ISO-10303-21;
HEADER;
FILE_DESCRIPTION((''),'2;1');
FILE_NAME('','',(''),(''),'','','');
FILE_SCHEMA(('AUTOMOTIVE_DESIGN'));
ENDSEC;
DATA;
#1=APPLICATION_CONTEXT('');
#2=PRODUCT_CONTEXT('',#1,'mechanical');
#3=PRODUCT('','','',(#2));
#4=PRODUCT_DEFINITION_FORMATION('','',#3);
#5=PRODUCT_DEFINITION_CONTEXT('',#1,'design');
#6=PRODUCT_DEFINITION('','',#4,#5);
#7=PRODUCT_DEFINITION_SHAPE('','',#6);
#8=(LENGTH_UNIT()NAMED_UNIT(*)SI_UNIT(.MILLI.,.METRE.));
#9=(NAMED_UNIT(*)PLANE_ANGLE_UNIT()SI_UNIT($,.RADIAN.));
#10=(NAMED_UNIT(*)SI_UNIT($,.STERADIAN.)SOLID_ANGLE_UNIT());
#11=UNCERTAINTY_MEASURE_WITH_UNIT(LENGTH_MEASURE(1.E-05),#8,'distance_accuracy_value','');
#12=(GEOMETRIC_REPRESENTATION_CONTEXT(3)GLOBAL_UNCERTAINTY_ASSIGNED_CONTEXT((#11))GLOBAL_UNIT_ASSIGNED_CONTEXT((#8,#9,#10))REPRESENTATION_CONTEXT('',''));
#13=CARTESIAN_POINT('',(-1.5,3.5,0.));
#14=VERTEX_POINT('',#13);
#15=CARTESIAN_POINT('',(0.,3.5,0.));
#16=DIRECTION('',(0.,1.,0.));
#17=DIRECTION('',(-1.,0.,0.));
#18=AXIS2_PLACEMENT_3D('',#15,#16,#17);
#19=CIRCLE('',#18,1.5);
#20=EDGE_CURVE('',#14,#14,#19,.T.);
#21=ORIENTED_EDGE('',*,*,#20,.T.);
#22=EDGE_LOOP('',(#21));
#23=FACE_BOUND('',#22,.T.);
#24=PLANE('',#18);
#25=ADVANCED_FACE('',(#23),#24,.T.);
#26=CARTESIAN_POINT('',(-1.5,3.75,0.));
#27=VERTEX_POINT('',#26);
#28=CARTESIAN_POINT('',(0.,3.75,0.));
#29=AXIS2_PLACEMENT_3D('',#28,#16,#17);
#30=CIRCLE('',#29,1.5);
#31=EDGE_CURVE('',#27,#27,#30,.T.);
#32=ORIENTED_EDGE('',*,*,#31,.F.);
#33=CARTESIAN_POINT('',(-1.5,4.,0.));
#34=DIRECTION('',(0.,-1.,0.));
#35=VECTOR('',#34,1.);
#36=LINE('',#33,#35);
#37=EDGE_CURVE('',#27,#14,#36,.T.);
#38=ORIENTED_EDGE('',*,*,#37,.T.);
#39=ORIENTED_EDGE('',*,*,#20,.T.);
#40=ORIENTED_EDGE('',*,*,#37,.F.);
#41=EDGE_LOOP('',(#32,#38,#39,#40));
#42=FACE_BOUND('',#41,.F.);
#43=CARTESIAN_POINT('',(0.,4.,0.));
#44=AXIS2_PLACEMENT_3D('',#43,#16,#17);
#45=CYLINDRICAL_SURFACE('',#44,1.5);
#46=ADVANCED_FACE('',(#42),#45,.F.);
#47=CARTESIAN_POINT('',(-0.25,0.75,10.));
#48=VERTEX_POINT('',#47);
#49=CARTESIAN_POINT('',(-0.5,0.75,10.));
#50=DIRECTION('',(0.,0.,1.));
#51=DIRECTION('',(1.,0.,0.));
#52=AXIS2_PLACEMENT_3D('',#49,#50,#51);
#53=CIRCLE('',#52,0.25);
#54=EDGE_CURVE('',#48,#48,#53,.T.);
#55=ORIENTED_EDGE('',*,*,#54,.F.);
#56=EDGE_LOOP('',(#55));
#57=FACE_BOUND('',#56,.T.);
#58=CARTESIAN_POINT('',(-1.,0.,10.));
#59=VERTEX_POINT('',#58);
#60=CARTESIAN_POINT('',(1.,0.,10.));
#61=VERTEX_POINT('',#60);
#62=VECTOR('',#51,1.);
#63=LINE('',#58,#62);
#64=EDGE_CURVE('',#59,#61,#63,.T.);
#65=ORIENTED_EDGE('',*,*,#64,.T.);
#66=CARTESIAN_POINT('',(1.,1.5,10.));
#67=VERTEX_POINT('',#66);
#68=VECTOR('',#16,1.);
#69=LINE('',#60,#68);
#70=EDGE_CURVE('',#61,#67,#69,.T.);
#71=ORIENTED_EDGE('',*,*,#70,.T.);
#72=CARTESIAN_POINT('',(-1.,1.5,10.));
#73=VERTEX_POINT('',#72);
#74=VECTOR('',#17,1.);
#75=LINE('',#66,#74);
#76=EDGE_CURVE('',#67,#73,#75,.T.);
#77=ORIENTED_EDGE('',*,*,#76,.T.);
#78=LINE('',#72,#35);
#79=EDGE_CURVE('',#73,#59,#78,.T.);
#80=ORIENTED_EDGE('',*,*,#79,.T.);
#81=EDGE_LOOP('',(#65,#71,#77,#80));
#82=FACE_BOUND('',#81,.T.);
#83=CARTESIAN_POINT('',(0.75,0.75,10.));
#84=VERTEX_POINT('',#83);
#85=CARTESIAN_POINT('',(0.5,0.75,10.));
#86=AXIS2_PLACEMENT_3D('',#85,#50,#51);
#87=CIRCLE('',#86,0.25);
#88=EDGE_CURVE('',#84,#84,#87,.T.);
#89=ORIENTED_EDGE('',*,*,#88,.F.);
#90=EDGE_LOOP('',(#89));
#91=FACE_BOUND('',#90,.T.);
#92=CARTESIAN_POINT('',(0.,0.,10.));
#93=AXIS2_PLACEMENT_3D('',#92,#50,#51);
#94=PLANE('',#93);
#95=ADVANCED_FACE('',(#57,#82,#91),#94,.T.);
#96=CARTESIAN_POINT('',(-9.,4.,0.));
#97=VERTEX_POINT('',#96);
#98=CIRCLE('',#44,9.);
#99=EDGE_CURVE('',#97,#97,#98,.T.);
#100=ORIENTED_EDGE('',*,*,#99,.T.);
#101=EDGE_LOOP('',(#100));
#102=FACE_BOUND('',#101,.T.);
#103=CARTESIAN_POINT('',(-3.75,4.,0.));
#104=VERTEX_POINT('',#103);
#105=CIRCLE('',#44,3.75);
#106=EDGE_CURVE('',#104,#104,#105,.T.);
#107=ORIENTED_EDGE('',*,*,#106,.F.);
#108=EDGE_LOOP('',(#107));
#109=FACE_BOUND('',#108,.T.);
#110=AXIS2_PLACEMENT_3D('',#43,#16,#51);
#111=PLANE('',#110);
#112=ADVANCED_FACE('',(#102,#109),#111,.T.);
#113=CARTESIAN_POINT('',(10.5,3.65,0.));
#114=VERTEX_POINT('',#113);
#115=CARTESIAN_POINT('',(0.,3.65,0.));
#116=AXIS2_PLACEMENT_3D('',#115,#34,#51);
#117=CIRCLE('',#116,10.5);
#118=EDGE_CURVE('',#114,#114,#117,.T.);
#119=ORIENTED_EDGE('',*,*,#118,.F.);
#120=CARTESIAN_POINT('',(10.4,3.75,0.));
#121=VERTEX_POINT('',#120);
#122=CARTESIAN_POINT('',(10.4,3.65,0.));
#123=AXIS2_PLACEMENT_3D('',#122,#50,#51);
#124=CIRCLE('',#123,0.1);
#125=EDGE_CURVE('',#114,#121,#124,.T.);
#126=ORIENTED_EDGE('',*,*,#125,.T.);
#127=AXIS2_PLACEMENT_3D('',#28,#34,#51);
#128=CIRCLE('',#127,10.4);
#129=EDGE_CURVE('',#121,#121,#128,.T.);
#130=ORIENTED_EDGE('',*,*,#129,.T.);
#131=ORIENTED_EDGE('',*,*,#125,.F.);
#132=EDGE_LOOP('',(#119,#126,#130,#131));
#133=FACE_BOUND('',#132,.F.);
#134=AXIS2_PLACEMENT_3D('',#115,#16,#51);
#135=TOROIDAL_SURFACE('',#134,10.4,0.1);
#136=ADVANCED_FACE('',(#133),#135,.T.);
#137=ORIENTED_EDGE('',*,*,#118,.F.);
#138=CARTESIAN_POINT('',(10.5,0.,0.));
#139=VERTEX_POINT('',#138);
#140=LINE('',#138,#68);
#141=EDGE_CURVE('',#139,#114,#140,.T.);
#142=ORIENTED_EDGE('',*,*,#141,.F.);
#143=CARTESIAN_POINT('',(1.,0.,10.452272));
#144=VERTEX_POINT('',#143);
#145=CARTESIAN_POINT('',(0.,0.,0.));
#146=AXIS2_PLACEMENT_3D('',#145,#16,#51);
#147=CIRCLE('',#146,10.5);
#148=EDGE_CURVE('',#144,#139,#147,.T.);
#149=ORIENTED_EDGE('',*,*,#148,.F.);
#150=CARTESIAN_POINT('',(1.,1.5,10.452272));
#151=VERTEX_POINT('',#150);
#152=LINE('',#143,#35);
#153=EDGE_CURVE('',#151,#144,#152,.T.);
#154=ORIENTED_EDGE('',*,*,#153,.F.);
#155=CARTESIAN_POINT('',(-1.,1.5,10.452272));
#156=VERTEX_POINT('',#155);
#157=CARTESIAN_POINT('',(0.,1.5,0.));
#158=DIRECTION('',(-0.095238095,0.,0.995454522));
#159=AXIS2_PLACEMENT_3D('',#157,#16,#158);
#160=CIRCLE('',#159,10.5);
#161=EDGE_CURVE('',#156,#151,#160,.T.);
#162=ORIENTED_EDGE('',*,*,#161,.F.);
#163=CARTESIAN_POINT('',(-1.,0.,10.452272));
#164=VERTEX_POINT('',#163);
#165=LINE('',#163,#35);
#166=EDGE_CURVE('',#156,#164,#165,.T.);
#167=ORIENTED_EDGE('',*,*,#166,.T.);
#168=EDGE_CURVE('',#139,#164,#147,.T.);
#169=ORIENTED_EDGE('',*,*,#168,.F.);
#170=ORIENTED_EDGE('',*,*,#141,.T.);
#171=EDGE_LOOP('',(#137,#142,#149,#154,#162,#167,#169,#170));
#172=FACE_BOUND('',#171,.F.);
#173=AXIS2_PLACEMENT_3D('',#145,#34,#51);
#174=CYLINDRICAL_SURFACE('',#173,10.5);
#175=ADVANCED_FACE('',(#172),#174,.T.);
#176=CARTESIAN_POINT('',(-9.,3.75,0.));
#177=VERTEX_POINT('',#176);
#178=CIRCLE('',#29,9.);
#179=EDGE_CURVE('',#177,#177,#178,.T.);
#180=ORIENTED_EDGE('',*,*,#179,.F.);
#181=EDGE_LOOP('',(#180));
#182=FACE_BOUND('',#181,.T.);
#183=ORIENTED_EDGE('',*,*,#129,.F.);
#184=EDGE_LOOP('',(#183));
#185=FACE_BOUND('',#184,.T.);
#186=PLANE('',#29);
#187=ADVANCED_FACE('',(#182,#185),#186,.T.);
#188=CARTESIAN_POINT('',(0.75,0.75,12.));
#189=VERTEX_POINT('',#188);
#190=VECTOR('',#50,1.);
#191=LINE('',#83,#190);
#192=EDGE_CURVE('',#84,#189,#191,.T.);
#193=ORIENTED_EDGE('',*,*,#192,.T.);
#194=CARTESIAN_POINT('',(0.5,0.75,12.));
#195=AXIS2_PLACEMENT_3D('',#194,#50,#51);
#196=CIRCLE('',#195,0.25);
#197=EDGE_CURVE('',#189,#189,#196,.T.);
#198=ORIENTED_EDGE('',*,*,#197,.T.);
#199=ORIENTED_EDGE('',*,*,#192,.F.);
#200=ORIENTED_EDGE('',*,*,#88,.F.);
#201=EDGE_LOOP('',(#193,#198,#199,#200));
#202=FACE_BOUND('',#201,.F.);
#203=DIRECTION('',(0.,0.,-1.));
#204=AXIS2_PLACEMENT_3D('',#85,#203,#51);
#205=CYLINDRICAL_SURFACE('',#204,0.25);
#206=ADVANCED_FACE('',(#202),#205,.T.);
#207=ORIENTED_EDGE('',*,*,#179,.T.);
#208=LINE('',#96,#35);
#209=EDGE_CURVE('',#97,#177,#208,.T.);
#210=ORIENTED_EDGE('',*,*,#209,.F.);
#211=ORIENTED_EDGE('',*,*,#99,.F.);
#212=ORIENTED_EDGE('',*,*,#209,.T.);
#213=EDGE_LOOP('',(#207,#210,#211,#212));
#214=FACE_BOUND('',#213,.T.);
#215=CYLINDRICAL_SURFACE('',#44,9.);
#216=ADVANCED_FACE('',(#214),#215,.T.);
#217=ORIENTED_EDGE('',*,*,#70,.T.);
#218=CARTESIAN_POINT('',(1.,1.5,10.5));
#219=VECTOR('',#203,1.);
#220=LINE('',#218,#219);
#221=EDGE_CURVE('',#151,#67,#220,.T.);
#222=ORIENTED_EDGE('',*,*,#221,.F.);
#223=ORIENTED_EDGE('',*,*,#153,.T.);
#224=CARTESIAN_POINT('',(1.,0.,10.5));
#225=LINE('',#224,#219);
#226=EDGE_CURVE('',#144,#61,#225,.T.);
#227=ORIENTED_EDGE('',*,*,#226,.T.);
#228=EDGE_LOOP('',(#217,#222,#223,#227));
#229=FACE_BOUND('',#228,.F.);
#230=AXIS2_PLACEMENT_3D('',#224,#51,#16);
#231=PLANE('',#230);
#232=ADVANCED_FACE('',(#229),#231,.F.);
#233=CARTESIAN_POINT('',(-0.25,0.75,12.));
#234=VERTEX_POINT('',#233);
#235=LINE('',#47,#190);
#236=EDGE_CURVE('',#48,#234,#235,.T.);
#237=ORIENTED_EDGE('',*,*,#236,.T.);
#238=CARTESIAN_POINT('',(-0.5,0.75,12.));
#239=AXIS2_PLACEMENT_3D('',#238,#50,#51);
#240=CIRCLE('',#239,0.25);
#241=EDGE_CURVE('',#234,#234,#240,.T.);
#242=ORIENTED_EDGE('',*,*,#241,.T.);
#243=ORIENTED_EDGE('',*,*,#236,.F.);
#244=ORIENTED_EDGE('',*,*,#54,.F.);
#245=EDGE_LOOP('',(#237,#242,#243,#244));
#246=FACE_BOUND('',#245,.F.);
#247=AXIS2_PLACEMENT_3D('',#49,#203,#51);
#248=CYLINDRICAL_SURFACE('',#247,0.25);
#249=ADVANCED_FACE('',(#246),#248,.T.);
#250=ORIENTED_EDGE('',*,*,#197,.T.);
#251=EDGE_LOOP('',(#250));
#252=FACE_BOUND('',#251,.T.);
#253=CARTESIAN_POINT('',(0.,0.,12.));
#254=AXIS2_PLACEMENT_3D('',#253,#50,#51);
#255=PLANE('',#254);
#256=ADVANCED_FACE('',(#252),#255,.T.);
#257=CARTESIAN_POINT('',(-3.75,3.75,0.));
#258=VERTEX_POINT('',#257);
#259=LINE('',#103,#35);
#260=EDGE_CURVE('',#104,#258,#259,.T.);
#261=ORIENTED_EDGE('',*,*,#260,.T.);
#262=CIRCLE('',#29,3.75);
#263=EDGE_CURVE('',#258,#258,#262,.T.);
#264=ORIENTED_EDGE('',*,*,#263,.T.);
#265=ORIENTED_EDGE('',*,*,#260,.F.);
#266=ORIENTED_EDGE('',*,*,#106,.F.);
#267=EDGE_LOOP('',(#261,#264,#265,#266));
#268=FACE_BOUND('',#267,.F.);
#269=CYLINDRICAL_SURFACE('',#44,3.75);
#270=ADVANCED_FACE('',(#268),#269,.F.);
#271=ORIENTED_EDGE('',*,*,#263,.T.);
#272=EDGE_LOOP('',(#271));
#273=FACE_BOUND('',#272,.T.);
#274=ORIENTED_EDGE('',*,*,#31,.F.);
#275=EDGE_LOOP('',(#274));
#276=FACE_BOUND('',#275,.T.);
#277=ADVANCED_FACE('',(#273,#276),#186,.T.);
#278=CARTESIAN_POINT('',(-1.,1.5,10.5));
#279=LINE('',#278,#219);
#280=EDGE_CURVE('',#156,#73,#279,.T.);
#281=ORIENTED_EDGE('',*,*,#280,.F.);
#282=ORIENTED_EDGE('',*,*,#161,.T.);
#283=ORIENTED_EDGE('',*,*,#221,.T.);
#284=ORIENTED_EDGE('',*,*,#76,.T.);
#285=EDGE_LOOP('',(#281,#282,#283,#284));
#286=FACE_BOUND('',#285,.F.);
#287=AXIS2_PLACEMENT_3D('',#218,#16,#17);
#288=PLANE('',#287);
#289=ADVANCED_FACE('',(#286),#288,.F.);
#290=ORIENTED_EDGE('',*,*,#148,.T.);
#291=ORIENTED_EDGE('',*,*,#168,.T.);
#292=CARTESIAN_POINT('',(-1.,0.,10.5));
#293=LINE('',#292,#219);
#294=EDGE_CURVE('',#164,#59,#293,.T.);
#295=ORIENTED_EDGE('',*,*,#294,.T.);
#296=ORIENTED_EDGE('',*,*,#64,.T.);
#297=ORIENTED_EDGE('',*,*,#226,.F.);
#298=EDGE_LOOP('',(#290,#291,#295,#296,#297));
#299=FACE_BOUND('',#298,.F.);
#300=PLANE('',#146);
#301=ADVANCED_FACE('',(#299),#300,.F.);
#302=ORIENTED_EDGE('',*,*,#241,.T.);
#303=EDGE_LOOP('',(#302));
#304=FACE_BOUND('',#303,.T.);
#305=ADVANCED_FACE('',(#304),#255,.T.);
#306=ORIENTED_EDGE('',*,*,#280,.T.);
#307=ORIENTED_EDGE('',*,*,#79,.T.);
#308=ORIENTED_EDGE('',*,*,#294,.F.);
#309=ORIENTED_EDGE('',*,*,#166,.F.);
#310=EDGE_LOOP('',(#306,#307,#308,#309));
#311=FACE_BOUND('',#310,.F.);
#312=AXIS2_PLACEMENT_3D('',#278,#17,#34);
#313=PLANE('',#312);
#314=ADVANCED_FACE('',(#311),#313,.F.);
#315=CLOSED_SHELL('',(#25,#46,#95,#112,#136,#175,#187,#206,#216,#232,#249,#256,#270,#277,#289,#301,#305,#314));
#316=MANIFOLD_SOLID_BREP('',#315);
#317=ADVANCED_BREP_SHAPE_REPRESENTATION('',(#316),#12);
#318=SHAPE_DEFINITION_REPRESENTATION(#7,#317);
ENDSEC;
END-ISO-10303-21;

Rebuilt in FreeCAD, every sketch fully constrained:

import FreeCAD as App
import Part
import Sketcher


def edges_at(feature, points):
    """Names of the edges that pass closest to the given points."""
    edges = feature.Shape.Edges
    near = lambda p: min(range(len(edges)), key=lambda i: edges[i].distToShape(Part.Vertex(*p))[0])
    return sorted({f"Edge{near(p) + 1}" for p in points})


def add_polygon(sketch, points):
    """Adds a closed chain of lines whose ends are joined by coincident constraints."""
    first, n = sketch.GeometryCount, len(points)
    for a, b in zip(points, points[1:] + points[:1]):
        sketch.addGeometry(Part.LineSegment(App.Vector(*a, 0), App.Vector(*b, 0)), False)
    for i in range(n):
        sketch.addConstraint(Sketcher.Constraint("Coincident", first + i, 2, first + (i + 1) % n, 1))

doc = App.newDocument("Part")
params = doc.addObject("Spreadsheet::Sheet", "Params")
for row, (alias, value) in enumerate([
    ("sketch1_diameter", "21 mm"),
    ("pad1_length", "4 mm"),
    ("sketch2_diameter", "3 mm"),
    ("pocket1_length", "0.5 mm"),
    ("sketch3_diameter", "3 mm"),
    ("sketch3_diameter2", "7.5 mm"),
    ("sketch3_diameter3", "21 mm"),
    ("sketch3_diameter4", "18 mm"),
    ("pocket2_length", "0.25 mm"),
    ("fillet_radius", "0.1 mm"),
    ("sketch4_width", "2 mm"),
    ("sketch4_height", "1.5 mm"),
    ("pocket3_length", "0.5 mm"),
    ("sketch5_diameter", "0.5 mm"),
    ("pad2_length", "2 mm"),
], start=1):
    params.set(f"A{row}", alias)
    params.set(f"B{row}", "=" + value)
    params.setAlias(f"B{row}", alias)

body = doc.addObject("PartDesign::Body", "Body")

# Sketch on XZ plane
sketch1 = doc.addObject("Sketcher::SketchObject", "Sketch")
body.addObject(sketch1)
sketch1.AttachmentSupport = (doc.XZ_Plane, [""])
sketch1.MapMode = "FlatFace"
sketch1.addGeometry(Part.Circle(App.Vector(0, 0, 0), App.Vector(0, 0, 1), 10), False)
sketch1.addConstraint([
    Sketcher.Constraint("Coincident", 0, 3, -1, 1),
    Sketcher.Constraint("Diameter", 0, 21.0),
])
sketch1.setExpression("Constraints[1]", "Params.sketch1_diameter")
pad1 = doc.addObject("PartDesign::Pad", "Pad")
body.addObject(pad1)
pad1.Profile = sketch1
pad1.setExpression("Length", "Params.pad1_length")
pad1.Reversed = True

# Sketch on XZ plane
sketch2 = doc.addObject("Sketcher::SketchObject", "Sketch001")
body.addObject(sketch2)
sketch2.AttachmentSupport = (doc.XZ_Plane, [""])
sketch2.MapMode = "FlatFace"
sketch2.AttachmentOffset = App.Placement(App.Vector(0, 0, -4), App.Rotation())
sketch2.addGeometry(Part.Circle(App.Vector(0, 0, 0), App.Vector(0, 0, 1), 1.5), False)
sketch2.addConstraint([
    Sketcher.Constraint("Coincident", 0, 3, -1, 1),
    Sketcher.Constraint("Diameter", 0, 3.0),
])
sketch2.setExpression("Constraints[1]", "Params.sketch2_diameter")
pocket1 = doc.addObject("PartDesign::Pocket", "Pocket")
body.addObject(pocket1)
pocket1.Profile = sketch2
pocket1.setExpression("Length", "Params.pocket1_length")
pocket1.Reversed = True

# Sketch on XZ plane
sketch3 = doc.addObject("Sketcher::SketchObject", "Sketch002")
body.addObject(sketch3)
sketch3.AttachmentSupport = (doc.XZ_Plane, [""])
sketch3.MapMode = "FlatFace"
sketch3.AttachmentOffset = App.Placement(App.Vector(0, 0, -4), App.Rotation())
sketch3.addGeometry([
    Part.Circle(App.Vector(0, 0, 0), App.Vector(0, 0, 1), 10.5),
    Part.Circle(App.Vector(0, 0, 0), App.Vector(0, 0, 1), 9),
    Part.Circle(App.Vector(0, 0, 0), App.Vector(0, 0, 1), 3.8),
    Part.Circle(App.Vector(0, 0, 0), App.Vector(0, 0, 1), 1.5),
], False)
sketch3.addConstraint([
    Sketcher.Constraint("Coincident", 0, 3, -1, 1),
    Sketcher.Constraint("Coincident", 1, 3, -1, 1),
    Sketcher.Constraint("Coincident", 2, 3, -1, 1),
    Sketcher.Constraint("Coincident", 3, 3, -1, 1),
    Sketcher.Constraint("Diameter", 3, 3.0),
    Sketcher.Constraint("Diameter", 2, 7.5),
    Sketcher.Constraint("Diameter", 0, 21.0),
    Sketcher.Constraint("Diameter", 1, 18.0),
])
sketch3.setExpression("Constraints[4]", "Params.sketch3_diameter")
sketch3.setExpression("Constraints[5]", "Params.sketch3_diameter2")
sketch3.setExpression("Constraints[6]", "Params.sketch3_diameter3")
sketch3.setExpression("Constraints[7]", "Params.sketch3_diameter4")
pocket2 = doc.addObject("PartDesign::Pocket", "Pocket001")
body.addObject(pocket2)
pocket2.Profile = sketch3
pocket2.setExpression("Length", "Params.pocket2_length")
pocket2.Reversed = True
doc.recompute()

fillet = doc.addObject("PartDesign::Fillet", "Fillet")
body.addObject(fillet)
fillet.Base = (pocket2, edges_at(pocket2, [(-9.789, 3.75, -3.797)]))
fillet.setExpression("Radius", "Params.fillet_radius")

# Sketch on XY plane
sketch4 = doc.addObject("Sketcher::SketchObject", "Sketch003")
body.addObject(sketch4)
sketch4.AttachmentSupport = (doc.XY_Plane, [""])
sketch4.MapMode = "FlatFace"
sketch4.AttachmentOffset = App.Placement(App.Vector(0, 0, 10.5), App.Rotation())
add_polygon(sketch4, [(-1, 1.5), (-1, 0), (1, 0), (1, 1.5)])  # lines 0-3
sketch4.addConstraint([
    Sketcher.Constraint("Vertical", 0),
    Sketcher.Constraint("Horizontal", 1),
    Sketcher.Constraint("Vertical", 2),
    Sketcher.Constraint("Horizontal", 3),
    Sketcher.Constraint("Symmetric", 0, 2, 1, 2, -1, 1),
    Sketcher.Constraint("DistanceX", 1, 1, 1, 2, 2.0),
    Sketcher.Constraint("DistanceY", 0, 2, 0, 1, 1.5),
])
sketch4.setExpression("Constraints[9]", "Params.sketch4_width")
sketch4.setExpression("Constraints[10]", "Params.sketch4_height")
pocket3 = doc.addObject("PartDesign::Pocket", "Pocket002")
body.addObject(pocket3)
pocket3.Profile = sketch4
pocket3.setExpression("Length", "Params.pocket3_length")

# Sketch on XY plane
sketch5 = doc.addObject("Sketcher::SketchObject", "Sketch004")
body.addObject(sketch5)
sketch5.AttachmentSupport = (doc.XY_Plane, [""])
sketch5.MapMode = "FlatFace"
sketch5.AttachmentOffset = App.Placement(App.Vector(0, 0, 10), App.Rotation())
sketch5.addGeometry([
    Part.Circle(App.Vector(-0.5, 0.75, 0), App.Vector(0, 0, 1), 0.25),
    Part.Circle(App.Vector(0.5, 0.75, 0), App.Vector(0, 0, 1), 0.25),
], False)
sketch5.addConstraint([
    Sketcher.Constraint("Equal", 0, 1),
    Sketcher.Constraint("Symmetric", 0, 3, 1, 3, -2),
    Sketcher.Constraint("Diameter", 0, 0.5),
    Sketcher.Constraint("DistanceX", 0, 3, -1, 1, 0.5),
    Sketcher.Constraint("DistanceY", -1, 1, 0, 3, 0.75),
])
sketch5.setExpression("Constraints[2]", "Params.sketch5_diameter")
pad2 = doc.addObject("PartDesign::Pad", "Pad001")
body.addObject(pad2)
pad2.Profile = sketch5
pad2.setExpression("Length", "Params.pad2_length")

doc.recompute()
